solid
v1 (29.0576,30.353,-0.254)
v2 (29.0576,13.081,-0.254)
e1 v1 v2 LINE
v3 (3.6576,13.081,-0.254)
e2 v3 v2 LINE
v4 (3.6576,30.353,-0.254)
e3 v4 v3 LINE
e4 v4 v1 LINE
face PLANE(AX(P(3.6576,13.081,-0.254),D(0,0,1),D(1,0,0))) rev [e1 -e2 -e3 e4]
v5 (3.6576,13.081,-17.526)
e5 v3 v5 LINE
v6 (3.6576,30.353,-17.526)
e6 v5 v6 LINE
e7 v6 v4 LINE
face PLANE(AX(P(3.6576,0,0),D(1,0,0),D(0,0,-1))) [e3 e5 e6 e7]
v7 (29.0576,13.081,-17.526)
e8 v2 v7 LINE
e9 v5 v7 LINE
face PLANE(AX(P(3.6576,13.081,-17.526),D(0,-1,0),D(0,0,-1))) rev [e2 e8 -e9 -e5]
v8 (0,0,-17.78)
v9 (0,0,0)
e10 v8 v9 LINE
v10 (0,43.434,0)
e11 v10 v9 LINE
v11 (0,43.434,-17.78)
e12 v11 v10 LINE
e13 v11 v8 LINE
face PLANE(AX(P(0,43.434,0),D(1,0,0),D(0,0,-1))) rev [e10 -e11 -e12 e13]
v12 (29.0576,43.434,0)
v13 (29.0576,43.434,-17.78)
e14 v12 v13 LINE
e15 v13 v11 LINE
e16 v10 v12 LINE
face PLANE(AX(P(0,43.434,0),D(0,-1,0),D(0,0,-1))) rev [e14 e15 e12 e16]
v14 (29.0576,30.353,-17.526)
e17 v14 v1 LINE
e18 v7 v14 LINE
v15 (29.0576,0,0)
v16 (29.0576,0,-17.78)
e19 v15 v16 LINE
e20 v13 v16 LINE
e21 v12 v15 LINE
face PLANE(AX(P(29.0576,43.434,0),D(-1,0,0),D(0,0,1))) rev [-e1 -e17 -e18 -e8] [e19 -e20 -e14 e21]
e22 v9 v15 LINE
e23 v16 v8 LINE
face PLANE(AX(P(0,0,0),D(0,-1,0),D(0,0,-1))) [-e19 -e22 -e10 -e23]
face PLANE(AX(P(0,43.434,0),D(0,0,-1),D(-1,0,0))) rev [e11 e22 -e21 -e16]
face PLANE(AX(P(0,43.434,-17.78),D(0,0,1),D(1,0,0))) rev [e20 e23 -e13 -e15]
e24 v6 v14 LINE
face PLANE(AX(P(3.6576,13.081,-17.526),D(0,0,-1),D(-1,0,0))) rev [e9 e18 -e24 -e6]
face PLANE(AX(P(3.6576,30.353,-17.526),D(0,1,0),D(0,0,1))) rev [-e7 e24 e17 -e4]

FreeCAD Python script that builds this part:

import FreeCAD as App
import Part
import Sketcher

V = App.Vector
Q = App.Units.Quantity

doc = App.newDocument("Part")
body = doc.addObject("PartDesign::Body", "Body")

# Sketch on XZ plane
sketch1 = body.newObject("Sketcher::SketchObject", "Sketch")
sketch1.AttachmentSupport = (doc.getObject("XZ_Plane"), [""])
sketch1.MapMode = "FlatFace"
sketch1.addGeometry(Part.LineSegment(V(0, -17.78, 0), V(0, 0, 0)), False)
sketch1.addGeometry(Part.LineSegment(V(0, 0, 0), V(29.0576, 0, 0)), False)
sketch1.addGeometry(Part.LineSegment(V(29.0576, 0, 0), V(29.0576, -17.78, 0)), False)
sketch1.addGeometry(Part.LineSegment(V(29.0576, -17.78, 0), V(0, -17.78, 0)), False)
sketch1.addConstraint(Sketcher.Constraint("Coincident", 0, 2, 1, 1))
sketch1.addConstraint(Sketcher.Constraint("Coincident", 1, 2, 2, 1))
sketch1.addConstraint(Sketcher.Constraint("Coincident", 2, 2, 3, 1))
sketch1.addConstraint(Sketcher.Constraint("Coincident", 3, 2, 0, 1))
sketch1.addConstraint(Sketcher.Constraint("Vertical", 0))
sketch1.addConstraint(Sketcher.Constraint("Horizontal", 1))
sketch1.addConstraint(Sketcher.Constraint("Vertical", 2))
sketch1.addConstraint(Sketcher.Constraint("Horizontal", 3))
sketch1.addConstraint(Sketcher.Constraint("Coincident", 0, 2, -1, 1))
sketch1.addConstraint(Sketcher.Constraint("DistanceY", 0, 1, 0, 2, Q("0.7 in")))
sketch1.addConstraint(Sketcher.Constraint("DistanceX", 1, 1, 1, 2, Q("1.144 in")))
pad1 = body.newObject("PartDesign::Pad", "Pad")
pad1.Profile = sketch1
pad1.Length = Q("1.71 in")
pad1.Reversed = True

# Sketch on YZ plane
sketch2 = body.newObject("Sketcher::SketchObject", "Sketch001")
sketch2.AttachmentSupport = (doc.getObject("YZ_Plane"), [""])
sketch2.MapMode = "FlatFace"
sketch2.AttachmentOffset = App.Placement(V(0, 0, 1.144 * 25.4), App.Rotation())
sketch2.addGeometry(Part.LineSegment(V(30.353, -0.254, 0), V(13.081, -0.254, 0)), False)
sketch2.addGeometry(Part.LineSegment(V(13.081, -0.254, 0), V(13.081, -17.526, 0)), False)
sketch2.addGeometry(Part.LineSegment(V(13.081, -17.526, 0), V(30.353, -17.526, 0)), False)
sketch2.addGeometry(Part.LineSegment(V(30.353, -17.526, 0), V(30.353, -0.254, 0)), False)
sketch2.addConstraint(Sketcher.Constraint("Coincident", 0, 2, 1, 1))
sketch2.addConstraint(Sketcher.Constraint("Coincident", 1, 2, 2, 1))
sketch2.addConstraint(Sketcher.Constraint("Coincident", 2, 2, 3, 1))
sketch2.addConstraint(Sketcher.Constraint("Coincident", 3, 2, 0, 1))
sketch2.addConstraint(Sketcher.Constraint("Horizontal", 0))
sketch2.addConstraint(Sketcher.Constraint("Vertical", 1))
sketch2.addConstraint(Sketcher.Constraint("Horizontal", 2))
sketch2.addConstraint(Sketcher.Constraint("Vertical", 3))
sketch2.addConstraint(Sketcher.Constraint("Equal", 2, 1))
sketch2.addConstraint(Sketcher.Constraint("DistanceX", 0, 2, 0, 1, Q("0.68 in")))
sketch2.addConstraint(Sketcher.Constraint("DistanceY", 0, 2, -1, 1, Q("0.01 in")))
sketch2.addConstraint(Sketcher.Constraint("DistanceX", -1, 1, 0, 2, Q("0.515 in")))
pocket1 = body.newObject("PartDesign::Pocket", "Pocket")
pocket1.Profile = sketch2
pocket1.Length = Q("1 in")

doc.recompute()
